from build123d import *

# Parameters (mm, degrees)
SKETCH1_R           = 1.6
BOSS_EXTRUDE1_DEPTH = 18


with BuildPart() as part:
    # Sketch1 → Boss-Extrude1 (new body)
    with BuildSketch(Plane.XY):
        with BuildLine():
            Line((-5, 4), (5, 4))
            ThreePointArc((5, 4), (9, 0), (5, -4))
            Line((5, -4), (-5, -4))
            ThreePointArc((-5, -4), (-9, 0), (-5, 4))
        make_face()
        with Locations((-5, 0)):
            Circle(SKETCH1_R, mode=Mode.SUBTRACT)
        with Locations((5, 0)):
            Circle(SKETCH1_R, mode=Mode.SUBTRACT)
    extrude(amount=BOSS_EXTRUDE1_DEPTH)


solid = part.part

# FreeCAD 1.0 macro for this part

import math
import FreeCAD as App
import Part
import Sketcher

doc = App.newDocument("Part")
body = doc.addObject("PartDesign::Body", "Body")

# Sketch on XY plane
sketch1 = body.newObject("Sketcher::SketchObject", "Sketch")
sketch1.AttachmentSupport = (doc.getObject("XY_Plane"), [""])
sketch1.MapMode = "FlatFace"
sketch1.addGeometry([
    Part.LineSegment(App.Vector(5, 4, 0), App.Vector(-5, 4, 0)),  # 0
    Part.ArcOfCircle(Part.Circle(App.Vector(-5, 0, 0), App.Vector(0, 0, 1), 4), math.radians(90), math.radians(270)),  # 1
    Part.LineSegment(App.Vector(-5, -4, 0), App.Vector(5, -4, 0)),  # 2
    Part.ArcOfCircle(Part.Circle(App.Vector(5, 0, 0), App.Vector(0, 0, 1), 4), math.radians(-90), math.radians(90)),  # 3
    Part.Circle(App.Vector(5, 0, 0), App.Vector(0, 0, 1), 1.6),  # 4
    Part.Circle(App.Vector(-5, 0, 0), App.Vector(0, 0, 1), 1.6),  # 5
], False)
sketch1.addConstraint([
    Sketcher.Constraint("Tangent", 0, 2, 1, 1),
    Sketcher.Constraint("Tangent", 1, 2, 2, 1),
    Sketcher.Constraint("Tangent", 2, 2, 3, 1),
    Sketcher.Constraint("Tangent", 3, 2, 0, 1),
    Sketcher.Constraint("Horizontal", 0),
    Sketcher.Constraint("Horizontal", 2),
    Sketcher.Constraint("Coincident", 4, 3, 3, 3),
    Sketcher.Constraint("Coincident", 5, 3, 1, 3),
    Sketcher.Constraint("Equal", 4, 5),
    Sketcher.Constraint("Symmetric", 1, 3, 3, 3, -1, 1),
    Sketcher.Constraint("Radius", 1, 4.0),
    Sketcher.Constraint("Diameter", 4, 3.2),
    Sketcher.Constraint("DistanceX", 0, 2, 0, 1, 10.0),
])
pad1 = body.newObject("PartDesign::Pad", "Pad")
pad1.Profile = sketch1
pad1.Length = 18

doc.recompute()
